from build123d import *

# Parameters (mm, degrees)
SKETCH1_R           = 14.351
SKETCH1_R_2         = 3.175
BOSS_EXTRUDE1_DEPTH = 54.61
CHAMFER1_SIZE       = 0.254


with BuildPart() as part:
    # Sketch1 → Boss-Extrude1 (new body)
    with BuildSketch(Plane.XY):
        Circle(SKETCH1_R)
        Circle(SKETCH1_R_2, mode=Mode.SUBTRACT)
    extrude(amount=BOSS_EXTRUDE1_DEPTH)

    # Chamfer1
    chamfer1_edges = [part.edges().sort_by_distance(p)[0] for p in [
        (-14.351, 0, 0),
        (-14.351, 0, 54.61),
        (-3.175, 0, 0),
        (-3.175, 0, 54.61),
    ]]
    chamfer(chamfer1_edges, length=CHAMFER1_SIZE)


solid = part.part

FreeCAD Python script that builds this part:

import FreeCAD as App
import Part
import Sketcher
Q = App.Units.Quantity


def edges_at(feature, points):
    """Names of the edges that pass closest to the given points."""
    edges = feature.Shape.Edges
    near = lambda p: min(range(len(edges)), key=lambda i: edges[i].distToShape(Part.Vertex(*p))[0])
    return sorted({f"Edge{near(p) + 1}" for p in points})

doc = App.newDocument("Part")
body = doc.addObject("PartDesign::Body", "Body")

# Sketch on XY plane
sketch1 = doc.addObject("Sketcher::SketchObject", "Sketch")
body.addObject(sketch1)
sketch1.AttachmentSupport = (doc.XY_Plane, [""])
sketch1.MapMode = "FlatFace"
sketch1.addGeometry([
    Part.Circle(App.Vector(0, 0, 0), App.Vector(0, 0, 1), 14.351),
    Part.Circle(App.Vector(0, 0, 0), App.Vector(0, 0, 1), 3.175),
], False)
sketch1.addConstraint([
    Sketcher.Constraint("Coincident", 0, 3, -1, 1),
    Sketcher.Constraint("Coincident", 1, 3, -1, 1),
    Sketcher.Constraint("Diameter", 0, Q("1.13 in")),
    Sketcher.Constraint("Diameter", 1, Q("0.25 in")),
])
pad1 = doc.addObject("PartDesign::Pad", "Pad")
body.addObject(pad1)
pad1.Profile = sketch1
pad1.Length = Q("2.15 in")
doc.recompute()

chamfer = doc.addObject("PartDesign::Chamfer", "Chamfer")
body.addObject(chamfer)
chamfer.Base = (pad1, edges_at(pad1, [
    (-14.351, 0, 0),
    (-14.351, 0, 54.61),
    (-3.175, 0, 0),
    (-3.175, 0, 54.61),
]))
chamfer.Size = Q("0.01 in")

doc.recompute()
